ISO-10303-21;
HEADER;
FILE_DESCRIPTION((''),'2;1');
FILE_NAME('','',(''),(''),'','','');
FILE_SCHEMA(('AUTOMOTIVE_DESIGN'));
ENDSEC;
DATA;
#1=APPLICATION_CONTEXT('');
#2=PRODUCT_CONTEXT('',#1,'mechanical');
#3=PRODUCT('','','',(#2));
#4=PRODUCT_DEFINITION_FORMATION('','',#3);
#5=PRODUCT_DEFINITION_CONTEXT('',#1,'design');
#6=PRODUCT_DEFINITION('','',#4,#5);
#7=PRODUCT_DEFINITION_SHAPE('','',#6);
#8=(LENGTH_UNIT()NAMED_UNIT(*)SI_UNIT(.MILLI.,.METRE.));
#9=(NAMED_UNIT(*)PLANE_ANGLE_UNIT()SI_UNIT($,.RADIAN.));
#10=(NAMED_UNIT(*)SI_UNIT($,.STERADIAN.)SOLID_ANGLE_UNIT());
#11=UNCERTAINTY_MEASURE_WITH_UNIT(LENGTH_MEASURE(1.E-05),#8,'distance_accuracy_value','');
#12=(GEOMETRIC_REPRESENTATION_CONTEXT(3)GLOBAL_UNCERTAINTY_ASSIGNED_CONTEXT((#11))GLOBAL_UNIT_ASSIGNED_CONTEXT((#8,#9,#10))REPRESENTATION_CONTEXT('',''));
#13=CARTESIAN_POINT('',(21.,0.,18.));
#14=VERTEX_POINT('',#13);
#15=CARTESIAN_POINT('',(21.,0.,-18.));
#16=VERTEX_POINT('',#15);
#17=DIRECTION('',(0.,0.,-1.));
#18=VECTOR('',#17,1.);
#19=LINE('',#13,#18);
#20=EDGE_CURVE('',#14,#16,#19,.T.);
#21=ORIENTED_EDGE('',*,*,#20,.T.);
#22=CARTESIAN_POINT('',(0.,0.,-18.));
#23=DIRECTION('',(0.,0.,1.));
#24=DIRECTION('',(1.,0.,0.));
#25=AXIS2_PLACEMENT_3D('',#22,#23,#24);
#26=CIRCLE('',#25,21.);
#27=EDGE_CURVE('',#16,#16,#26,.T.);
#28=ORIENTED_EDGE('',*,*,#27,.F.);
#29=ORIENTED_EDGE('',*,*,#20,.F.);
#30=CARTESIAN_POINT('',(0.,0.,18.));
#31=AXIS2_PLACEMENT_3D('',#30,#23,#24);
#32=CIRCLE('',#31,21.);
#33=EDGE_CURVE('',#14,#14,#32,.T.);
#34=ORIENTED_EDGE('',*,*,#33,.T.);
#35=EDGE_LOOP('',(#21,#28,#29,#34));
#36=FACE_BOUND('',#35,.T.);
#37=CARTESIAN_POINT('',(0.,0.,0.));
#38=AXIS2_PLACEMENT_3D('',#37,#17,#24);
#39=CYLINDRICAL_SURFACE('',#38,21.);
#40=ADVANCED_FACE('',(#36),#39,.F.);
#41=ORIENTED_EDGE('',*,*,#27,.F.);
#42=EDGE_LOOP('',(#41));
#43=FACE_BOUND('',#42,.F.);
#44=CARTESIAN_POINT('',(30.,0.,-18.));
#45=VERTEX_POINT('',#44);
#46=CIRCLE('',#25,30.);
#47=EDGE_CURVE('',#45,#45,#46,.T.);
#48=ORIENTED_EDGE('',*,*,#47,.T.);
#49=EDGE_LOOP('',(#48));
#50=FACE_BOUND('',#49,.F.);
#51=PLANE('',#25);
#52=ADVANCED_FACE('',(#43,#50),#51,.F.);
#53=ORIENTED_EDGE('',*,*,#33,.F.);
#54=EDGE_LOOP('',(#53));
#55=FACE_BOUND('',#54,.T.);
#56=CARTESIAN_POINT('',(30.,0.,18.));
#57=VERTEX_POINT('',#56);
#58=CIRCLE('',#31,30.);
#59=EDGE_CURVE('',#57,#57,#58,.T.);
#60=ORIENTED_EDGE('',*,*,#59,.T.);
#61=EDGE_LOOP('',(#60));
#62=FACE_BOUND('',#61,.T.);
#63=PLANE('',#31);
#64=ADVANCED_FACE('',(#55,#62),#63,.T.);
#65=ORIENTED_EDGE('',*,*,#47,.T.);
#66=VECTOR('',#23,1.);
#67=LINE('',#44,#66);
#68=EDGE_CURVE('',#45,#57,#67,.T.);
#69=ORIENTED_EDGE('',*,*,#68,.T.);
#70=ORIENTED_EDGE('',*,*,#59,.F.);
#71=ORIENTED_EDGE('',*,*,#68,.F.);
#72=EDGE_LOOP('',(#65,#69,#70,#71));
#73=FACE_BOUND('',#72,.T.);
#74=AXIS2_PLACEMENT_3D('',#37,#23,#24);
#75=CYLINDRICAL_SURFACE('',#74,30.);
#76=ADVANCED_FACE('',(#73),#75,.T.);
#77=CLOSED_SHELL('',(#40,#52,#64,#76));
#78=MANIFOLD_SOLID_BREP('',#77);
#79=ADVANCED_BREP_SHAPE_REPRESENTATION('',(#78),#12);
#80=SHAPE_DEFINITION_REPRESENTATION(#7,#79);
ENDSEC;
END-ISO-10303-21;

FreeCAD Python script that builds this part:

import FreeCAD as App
import Part
import Sketcher
from FreeCAD import Vector

doc = App.newDocument("Part")
body = doc.addObject("PartDesign::Body", "Body")

# Sketch on XY plane
sketch1 = body.newObject("Sketcher::SketchObject", "Sketch")
sketch1.AttachmentSupport = (doc.getObject("XY_Plane"), [""])
sketch1.MapMode = "FlatFace"
sketch1.addGeometry([
    Part.Circle(Vector(0, 0, 0), Vector(0, 0, 1), 30),
    Part.Circle(Vector(0, 0, 0), Vector(0, 0, 1), 21),
], False)
sketch1.addConstraint([
    Sketcher.Constraint("Coincident", 0, 3, -1, 1),
    Sketcher.Constraint("Coincident", 1, 3, -1, 1),
    Sketcher.Constraint("Diameter", 0, 60.0),
    Sketcher.Constraint("Diameter", 1, 42.0),
])
pad1 = body.newObject("PartDesign::Pad", "Pad")
pad1.Profile = sketch1
pad1.Length = 36
pad1.Midplane = True

doc.recompute()
